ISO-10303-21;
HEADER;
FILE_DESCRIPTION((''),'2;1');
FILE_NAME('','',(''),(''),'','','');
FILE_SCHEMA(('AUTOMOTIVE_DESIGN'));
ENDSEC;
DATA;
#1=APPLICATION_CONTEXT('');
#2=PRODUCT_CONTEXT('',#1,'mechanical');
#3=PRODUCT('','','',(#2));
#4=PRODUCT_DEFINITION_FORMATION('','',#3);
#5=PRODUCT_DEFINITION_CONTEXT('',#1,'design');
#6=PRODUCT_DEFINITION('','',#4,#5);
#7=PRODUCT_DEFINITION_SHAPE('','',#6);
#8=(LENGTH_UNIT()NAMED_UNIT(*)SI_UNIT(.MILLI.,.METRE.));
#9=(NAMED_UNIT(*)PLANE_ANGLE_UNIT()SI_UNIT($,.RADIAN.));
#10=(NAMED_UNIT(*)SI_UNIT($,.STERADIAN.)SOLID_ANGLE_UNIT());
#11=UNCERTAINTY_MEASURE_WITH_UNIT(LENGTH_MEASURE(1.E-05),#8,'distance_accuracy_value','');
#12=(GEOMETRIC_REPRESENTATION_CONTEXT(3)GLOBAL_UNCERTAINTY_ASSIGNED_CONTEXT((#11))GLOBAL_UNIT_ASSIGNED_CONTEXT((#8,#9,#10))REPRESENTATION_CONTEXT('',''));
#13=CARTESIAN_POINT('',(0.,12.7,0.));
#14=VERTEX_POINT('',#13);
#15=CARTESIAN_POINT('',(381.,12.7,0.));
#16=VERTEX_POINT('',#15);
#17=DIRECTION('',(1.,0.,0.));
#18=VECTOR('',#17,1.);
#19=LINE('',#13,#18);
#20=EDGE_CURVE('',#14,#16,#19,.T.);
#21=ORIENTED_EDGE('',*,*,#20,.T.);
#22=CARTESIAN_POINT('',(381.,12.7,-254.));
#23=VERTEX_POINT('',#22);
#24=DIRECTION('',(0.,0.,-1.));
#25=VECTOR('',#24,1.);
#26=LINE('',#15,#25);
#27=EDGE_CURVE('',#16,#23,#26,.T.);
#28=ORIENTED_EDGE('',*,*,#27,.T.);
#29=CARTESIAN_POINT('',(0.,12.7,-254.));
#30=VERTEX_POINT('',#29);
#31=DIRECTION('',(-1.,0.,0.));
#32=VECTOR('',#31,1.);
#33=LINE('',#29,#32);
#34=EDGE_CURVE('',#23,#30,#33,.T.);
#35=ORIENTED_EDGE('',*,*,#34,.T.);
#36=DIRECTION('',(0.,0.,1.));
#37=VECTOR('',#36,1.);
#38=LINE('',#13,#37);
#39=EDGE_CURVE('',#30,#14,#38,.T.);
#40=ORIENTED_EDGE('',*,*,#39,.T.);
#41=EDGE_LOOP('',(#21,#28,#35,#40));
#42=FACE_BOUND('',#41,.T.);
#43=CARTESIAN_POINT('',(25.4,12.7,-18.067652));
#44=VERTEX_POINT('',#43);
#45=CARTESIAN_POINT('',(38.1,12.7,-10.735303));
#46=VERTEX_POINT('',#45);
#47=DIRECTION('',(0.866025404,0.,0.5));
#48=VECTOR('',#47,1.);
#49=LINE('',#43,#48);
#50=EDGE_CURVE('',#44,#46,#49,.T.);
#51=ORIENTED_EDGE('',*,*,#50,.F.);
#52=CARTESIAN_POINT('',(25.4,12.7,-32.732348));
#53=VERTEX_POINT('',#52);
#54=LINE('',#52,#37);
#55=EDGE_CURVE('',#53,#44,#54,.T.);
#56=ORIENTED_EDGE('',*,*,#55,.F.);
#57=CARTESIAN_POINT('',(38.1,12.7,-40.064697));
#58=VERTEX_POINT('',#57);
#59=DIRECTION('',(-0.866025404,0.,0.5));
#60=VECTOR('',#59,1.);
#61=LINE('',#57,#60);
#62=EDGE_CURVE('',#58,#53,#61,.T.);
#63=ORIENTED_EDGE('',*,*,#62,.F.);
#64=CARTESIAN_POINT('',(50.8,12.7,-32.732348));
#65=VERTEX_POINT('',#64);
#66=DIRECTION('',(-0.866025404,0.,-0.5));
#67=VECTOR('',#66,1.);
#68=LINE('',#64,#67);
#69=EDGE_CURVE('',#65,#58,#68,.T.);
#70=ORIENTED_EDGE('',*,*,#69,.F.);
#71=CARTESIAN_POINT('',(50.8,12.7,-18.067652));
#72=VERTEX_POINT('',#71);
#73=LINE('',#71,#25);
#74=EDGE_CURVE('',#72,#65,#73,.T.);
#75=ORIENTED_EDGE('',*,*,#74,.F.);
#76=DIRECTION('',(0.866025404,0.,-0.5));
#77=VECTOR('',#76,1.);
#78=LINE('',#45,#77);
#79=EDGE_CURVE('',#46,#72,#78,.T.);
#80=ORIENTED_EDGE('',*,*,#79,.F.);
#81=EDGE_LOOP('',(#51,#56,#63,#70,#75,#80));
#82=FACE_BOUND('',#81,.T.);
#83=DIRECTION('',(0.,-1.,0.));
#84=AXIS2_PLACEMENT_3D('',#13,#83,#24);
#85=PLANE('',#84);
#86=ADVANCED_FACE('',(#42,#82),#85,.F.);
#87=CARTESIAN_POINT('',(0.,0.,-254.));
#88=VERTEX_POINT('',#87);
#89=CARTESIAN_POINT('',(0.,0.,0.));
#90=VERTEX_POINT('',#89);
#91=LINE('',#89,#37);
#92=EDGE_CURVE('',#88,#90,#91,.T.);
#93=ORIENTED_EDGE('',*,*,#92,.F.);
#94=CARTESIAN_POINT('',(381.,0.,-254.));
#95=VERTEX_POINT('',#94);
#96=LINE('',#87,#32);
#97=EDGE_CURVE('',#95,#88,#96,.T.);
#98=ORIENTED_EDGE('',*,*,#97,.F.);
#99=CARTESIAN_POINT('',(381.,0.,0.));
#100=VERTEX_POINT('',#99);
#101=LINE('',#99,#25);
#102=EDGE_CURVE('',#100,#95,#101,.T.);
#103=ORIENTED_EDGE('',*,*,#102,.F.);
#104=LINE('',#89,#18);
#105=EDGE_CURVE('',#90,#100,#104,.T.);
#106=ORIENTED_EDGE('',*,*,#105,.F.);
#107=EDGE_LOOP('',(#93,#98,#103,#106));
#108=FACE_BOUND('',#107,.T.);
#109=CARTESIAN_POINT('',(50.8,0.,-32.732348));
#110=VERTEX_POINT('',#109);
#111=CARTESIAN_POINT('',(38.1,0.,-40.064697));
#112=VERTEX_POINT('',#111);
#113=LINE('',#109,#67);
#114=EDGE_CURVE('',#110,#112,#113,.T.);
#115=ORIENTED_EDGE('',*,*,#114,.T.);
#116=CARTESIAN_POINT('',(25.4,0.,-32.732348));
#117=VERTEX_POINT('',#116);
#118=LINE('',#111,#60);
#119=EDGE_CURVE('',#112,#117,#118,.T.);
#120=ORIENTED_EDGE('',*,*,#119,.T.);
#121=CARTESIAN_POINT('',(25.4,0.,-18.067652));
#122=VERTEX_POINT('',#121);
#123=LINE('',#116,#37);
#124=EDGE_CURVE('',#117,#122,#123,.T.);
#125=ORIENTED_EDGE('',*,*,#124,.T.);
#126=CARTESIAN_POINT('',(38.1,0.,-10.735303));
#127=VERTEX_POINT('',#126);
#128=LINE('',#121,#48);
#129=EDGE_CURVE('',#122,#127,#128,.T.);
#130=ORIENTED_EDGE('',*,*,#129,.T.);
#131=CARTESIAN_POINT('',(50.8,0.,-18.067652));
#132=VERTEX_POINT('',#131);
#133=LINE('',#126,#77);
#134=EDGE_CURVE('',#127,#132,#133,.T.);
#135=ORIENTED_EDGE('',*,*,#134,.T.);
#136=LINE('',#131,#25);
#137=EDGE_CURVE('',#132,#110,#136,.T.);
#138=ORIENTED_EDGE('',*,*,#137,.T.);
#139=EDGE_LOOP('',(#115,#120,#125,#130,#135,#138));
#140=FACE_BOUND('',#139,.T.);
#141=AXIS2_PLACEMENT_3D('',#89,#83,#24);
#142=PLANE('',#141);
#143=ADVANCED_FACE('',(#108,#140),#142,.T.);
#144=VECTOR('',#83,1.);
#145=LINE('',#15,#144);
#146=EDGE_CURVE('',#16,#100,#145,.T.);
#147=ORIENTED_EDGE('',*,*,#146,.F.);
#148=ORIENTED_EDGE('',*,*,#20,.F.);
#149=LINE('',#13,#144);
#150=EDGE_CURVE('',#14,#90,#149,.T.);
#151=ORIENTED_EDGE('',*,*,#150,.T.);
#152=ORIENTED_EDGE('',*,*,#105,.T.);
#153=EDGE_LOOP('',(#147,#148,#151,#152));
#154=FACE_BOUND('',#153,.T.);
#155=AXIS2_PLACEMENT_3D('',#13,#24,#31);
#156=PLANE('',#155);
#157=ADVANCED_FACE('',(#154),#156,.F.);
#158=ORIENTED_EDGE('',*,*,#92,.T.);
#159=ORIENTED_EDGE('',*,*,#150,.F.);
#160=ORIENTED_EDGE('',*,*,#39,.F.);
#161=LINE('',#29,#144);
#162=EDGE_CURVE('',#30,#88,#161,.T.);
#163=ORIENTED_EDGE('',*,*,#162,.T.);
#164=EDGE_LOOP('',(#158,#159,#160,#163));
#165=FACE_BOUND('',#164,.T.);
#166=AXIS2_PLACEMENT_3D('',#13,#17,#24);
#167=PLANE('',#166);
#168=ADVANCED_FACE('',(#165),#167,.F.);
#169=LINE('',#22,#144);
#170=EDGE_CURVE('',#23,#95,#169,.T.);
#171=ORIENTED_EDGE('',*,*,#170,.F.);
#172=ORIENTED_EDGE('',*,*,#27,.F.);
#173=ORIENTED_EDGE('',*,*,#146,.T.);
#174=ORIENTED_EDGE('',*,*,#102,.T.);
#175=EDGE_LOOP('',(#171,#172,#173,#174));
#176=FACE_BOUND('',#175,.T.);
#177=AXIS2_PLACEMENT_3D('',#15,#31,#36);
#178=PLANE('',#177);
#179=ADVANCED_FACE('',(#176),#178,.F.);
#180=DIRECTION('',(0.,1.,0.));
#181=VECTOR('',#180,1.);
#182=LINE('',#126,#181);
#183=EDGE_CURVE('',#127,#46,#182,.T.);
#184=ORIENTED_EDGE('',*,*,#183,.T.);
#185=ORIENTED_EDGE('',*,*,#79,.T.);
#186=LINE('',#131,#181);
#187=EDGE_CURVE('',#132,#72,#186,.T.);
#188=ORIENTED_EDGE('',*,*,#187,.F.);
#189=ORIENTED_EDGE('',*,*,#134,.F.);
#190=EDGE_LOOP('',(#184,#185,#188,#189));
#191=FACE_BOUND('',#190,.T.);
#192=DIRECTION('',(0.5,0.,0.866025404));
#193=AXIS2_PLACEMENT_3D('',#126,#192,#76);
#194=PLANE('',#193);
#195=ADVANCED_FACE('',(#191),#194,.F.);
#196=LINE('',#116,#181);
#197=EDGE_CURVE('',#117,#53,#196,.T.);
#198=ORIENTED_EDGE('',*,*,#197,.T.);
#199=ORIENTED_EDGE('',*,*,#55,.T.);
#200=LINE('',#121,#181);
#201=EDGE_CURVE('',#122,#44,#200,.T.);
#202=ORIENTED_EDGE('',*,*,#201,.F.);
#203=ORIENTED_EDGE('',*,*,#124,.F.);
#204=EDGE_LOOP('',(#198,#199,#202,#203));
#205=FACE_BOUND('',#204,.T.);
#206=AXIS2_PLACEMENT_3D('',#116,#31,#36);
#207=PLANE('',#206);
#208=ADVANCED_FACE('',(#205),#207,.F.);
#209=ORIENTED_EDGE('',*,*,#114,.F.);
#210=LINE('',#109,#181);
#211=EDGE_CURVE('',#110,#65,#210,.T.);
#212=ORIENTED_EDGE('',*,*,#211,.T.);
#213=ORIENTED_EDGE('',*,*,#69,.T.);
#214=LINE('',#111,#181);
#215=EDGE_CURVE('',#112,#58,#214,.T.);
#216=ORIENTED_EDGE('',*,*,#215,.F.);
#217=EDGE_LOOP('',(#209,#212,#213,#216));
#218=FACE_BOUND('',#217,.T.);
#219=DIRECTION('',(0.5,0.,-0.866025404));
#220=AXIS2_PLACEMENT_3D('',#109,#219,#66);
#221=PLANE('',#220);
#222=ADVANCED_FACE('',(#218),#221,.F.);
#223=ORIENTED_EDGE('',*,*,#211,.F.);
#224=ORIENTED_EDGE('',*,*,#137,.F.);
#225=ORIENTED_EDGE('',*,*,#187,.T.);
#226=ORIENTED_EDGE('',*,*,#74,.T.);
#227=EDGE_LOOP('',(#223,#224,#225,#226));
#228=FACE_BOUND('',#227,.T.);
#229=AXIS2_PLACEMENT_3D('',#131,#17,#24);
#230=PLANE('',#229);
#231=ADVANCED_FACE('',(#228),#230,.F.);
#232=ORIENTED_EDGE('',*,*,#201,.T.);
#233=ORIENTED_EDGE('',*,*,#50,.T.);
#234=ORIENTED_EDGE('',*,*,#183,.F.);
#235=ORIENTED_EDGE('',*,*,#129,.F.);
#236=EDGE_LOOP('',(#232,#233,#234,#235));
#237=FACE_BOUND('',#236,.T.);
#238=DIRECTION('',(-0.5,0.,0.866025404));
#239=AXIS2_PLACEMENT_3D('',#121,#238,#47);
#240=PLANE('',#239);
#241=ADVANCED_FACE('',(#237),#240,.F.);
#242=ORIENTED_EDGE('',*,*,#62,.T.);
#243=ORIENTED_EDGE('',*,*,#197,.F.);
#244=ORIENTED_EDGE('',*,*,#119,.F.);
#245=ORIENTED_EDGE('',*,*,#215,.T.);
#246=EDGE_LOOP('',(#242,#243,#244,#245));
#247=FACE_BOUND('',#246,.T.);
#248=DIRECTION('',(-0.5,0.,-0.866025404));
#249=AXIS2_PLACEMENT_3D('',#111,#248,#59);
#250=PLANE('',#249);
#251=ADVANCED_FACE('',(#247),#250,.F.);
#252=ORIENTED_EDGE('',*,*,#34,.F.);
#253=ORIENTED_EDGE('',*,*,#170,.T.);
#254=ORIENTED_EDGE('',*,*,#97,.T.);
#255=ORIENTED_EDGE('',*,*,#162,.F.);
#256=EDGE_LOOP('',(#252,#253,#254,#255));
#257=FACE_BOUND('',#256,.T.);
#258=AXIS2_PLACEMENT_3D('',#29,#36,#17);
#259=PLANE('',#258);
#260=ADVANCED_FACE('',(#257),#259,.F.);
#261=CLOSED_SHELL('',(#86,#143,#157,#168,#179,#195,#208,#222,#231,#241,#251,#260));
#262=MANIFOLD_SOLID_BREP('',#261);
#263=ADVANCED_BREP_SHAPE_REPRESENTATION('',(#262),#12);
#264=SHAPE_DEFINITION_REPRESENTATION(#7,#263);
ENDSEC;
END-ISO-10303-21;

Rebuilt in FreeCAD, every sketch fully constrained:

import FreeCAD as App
import Part
import Sketcher

V = App.Vector
Q = App.Units.Quantity

doc = App.newDocument("Part")
body = doc.addObject("PartDesign::Body", "Body")

sketch1 = body.newObject("Sketcher::SketchObject", "Sketch")
sketch1.AttachmentSupport = (doc.getObject("XZ_Plane"), [""])
sketch1.MapMode = "FlatFace"
sketch1.addGeometry(Part.LineSegment(V(0, -254, 0), V(0, 0, 0)), False)
sketch1.addGeometry(Part.LineSegment(V(0, 0, 0), V(381, 0, 0)), False)
sketch1.addGeometry(Part.LineSegment(V(381, 0, 0), V(381, -254, 0)), False)
sketch1.addGeometry(Part.LineSegment(V(381, -254, 0), V(0, -254, 0)), False)
sketch1.addConstraint(Sketcher.Constraint("Coincident", 0, 2, 1, 1))
sketch1.addConstraint(Sketcher.Constraint("Coincident", 1, 2, 2, 1))
sketch1.addConstraint(Sketcher.Constraint("Coincident", 2, 2, 3, 1))
sketch1.addConstraint(Sketcher.Constraint("Coincident", 3, 2, 0, 1))
sketch1.addConstraint(Sketcher.Constraint("Vertical", 0))
sketch1.addConstraint(Sketcher.Constraint("Horizontal", 1))
sketch1.addConstraint(Sketcher.Constraint("Vertical", 2))
sketch1.addConstraint(Sketcher.Constraint("Horizontal", 3))
sketch1.addConstraint(Sketcher.Constraint("Coincident", 0, 2, -1, 1))
sketch1.addConstraint(Sketcher.Constraint("DistanceX", 1, 1, 1, 2, Q("15 in")))
sketch1.addConstraint(Sketcher.Constraint("DistanceY", 0, 1, 0, 2, Q("10 in")))
pad1 = body.newObject("PartDesign::Pad", "Pad")
pad1.Profile = sketch1
pad1.Length = Q("0.5 in")
pad1.Reversed = True

sketch2 = body.newObject("Sketcher::SketchObject", "Sketch001")
sketch2.AttachmentSupport = (doc.getObject("XZ_Plane"), [""])
sketch2.MapMode = "FlatFace"
sketch2.AttachmentOffset = App.Placement(V(0, 0, -0.5 * 25.4), App.Rotation())
sketch2.addGeometry(Part.LineSegment(V(38, -11, 0), V(51, -18, 0)), False)
sketch2.addGeometry(Part.LineSegment(V(51, -18, 0), V(51, -33, 0)), False)
sketch2.addGeometry(Part.LineSegment(V(51, -33, 0), V(38, -40, 0)), False)
sketch2.addGeometry(Part.LineSegment(V(38, -40, 0), V(25, -33, 0)), False)
sketch2.addGeometry(Part.LineSegment(V(25, -33, 0), V(25, -18, 0)), False)
sketch2.addGeometry(Part.LineSegment(V(25, -18, 0), V(38, -11, 0)), False)
sketch2.addConstraint(Sketcher.Constraint("Coincident", 0, 2, 1, 1))
sketch2.addConstraint(Sketcher.Constraint("Coincident", 1, 2, 2, 1))
sketch2.addConstraint(Sketcher.Constraint("Coincident", 2, 2, 3, 1))
sketch2.addConstraint(Sketcher.Constraint("Coincident", 3, 2, 4, 1))
sketch2.addConstraint(Sketcher.Constraint("Coincident", 4, 2, 5, 1))
sketch2.addConstraint(Sketcher.Constraint("Coincident", 5, 2, 0, 1))
sketch2.addConstraint(Sketcher.Constraint("Vertical", 1))
sketch2.addConstraint(Sketcher.Constraint("Vertical", 4))
sketch2.addConstraint(Sketcher.Constraint("Parallel", 0, 3))
sketch2.addConstraint(Sketcher.Constraint("Parallel", 2, 5))
sketch2.addConstraint(Sketcher.Constraint("Horizontal", 1, 2, 3, 2))
sketch2.addConstraint(Sketcher.Constraint("Horizontal", 0, 2, 4, 2))
sketch2.addConstraint(Sketcher.Constraint("Vertical", 2, 2, 5, 2))
sketch2.addConstraint(Sketcher.Constraint("DistanceX", -1, 1, 0, 2, Q("2 in")))
sketch2.addConstraint(Sketcher.Constraint("DistanceX", -1, 1, 3, 2, Q("1 in")))
sketch2.addConstraint(Sketcher.Constraint("Angle", 0, Q("-30 deg")))
sketch2.addConstraint(Sketcher.Constraint("DistanceY", 1, 2, 1, 1, 14.664697))
sketch2.addConstraint(Sketcher.Constraint("DistanceY", 0, 2, -1, 1, 18.067652))
pocket1 = body.newObject("PartDesign::Pocket", "Pocket")
pocket1.Profile = sketch2
pocket1.Type = "ThroughAll"
pocket1.Reversed = True

doc.recompute()
